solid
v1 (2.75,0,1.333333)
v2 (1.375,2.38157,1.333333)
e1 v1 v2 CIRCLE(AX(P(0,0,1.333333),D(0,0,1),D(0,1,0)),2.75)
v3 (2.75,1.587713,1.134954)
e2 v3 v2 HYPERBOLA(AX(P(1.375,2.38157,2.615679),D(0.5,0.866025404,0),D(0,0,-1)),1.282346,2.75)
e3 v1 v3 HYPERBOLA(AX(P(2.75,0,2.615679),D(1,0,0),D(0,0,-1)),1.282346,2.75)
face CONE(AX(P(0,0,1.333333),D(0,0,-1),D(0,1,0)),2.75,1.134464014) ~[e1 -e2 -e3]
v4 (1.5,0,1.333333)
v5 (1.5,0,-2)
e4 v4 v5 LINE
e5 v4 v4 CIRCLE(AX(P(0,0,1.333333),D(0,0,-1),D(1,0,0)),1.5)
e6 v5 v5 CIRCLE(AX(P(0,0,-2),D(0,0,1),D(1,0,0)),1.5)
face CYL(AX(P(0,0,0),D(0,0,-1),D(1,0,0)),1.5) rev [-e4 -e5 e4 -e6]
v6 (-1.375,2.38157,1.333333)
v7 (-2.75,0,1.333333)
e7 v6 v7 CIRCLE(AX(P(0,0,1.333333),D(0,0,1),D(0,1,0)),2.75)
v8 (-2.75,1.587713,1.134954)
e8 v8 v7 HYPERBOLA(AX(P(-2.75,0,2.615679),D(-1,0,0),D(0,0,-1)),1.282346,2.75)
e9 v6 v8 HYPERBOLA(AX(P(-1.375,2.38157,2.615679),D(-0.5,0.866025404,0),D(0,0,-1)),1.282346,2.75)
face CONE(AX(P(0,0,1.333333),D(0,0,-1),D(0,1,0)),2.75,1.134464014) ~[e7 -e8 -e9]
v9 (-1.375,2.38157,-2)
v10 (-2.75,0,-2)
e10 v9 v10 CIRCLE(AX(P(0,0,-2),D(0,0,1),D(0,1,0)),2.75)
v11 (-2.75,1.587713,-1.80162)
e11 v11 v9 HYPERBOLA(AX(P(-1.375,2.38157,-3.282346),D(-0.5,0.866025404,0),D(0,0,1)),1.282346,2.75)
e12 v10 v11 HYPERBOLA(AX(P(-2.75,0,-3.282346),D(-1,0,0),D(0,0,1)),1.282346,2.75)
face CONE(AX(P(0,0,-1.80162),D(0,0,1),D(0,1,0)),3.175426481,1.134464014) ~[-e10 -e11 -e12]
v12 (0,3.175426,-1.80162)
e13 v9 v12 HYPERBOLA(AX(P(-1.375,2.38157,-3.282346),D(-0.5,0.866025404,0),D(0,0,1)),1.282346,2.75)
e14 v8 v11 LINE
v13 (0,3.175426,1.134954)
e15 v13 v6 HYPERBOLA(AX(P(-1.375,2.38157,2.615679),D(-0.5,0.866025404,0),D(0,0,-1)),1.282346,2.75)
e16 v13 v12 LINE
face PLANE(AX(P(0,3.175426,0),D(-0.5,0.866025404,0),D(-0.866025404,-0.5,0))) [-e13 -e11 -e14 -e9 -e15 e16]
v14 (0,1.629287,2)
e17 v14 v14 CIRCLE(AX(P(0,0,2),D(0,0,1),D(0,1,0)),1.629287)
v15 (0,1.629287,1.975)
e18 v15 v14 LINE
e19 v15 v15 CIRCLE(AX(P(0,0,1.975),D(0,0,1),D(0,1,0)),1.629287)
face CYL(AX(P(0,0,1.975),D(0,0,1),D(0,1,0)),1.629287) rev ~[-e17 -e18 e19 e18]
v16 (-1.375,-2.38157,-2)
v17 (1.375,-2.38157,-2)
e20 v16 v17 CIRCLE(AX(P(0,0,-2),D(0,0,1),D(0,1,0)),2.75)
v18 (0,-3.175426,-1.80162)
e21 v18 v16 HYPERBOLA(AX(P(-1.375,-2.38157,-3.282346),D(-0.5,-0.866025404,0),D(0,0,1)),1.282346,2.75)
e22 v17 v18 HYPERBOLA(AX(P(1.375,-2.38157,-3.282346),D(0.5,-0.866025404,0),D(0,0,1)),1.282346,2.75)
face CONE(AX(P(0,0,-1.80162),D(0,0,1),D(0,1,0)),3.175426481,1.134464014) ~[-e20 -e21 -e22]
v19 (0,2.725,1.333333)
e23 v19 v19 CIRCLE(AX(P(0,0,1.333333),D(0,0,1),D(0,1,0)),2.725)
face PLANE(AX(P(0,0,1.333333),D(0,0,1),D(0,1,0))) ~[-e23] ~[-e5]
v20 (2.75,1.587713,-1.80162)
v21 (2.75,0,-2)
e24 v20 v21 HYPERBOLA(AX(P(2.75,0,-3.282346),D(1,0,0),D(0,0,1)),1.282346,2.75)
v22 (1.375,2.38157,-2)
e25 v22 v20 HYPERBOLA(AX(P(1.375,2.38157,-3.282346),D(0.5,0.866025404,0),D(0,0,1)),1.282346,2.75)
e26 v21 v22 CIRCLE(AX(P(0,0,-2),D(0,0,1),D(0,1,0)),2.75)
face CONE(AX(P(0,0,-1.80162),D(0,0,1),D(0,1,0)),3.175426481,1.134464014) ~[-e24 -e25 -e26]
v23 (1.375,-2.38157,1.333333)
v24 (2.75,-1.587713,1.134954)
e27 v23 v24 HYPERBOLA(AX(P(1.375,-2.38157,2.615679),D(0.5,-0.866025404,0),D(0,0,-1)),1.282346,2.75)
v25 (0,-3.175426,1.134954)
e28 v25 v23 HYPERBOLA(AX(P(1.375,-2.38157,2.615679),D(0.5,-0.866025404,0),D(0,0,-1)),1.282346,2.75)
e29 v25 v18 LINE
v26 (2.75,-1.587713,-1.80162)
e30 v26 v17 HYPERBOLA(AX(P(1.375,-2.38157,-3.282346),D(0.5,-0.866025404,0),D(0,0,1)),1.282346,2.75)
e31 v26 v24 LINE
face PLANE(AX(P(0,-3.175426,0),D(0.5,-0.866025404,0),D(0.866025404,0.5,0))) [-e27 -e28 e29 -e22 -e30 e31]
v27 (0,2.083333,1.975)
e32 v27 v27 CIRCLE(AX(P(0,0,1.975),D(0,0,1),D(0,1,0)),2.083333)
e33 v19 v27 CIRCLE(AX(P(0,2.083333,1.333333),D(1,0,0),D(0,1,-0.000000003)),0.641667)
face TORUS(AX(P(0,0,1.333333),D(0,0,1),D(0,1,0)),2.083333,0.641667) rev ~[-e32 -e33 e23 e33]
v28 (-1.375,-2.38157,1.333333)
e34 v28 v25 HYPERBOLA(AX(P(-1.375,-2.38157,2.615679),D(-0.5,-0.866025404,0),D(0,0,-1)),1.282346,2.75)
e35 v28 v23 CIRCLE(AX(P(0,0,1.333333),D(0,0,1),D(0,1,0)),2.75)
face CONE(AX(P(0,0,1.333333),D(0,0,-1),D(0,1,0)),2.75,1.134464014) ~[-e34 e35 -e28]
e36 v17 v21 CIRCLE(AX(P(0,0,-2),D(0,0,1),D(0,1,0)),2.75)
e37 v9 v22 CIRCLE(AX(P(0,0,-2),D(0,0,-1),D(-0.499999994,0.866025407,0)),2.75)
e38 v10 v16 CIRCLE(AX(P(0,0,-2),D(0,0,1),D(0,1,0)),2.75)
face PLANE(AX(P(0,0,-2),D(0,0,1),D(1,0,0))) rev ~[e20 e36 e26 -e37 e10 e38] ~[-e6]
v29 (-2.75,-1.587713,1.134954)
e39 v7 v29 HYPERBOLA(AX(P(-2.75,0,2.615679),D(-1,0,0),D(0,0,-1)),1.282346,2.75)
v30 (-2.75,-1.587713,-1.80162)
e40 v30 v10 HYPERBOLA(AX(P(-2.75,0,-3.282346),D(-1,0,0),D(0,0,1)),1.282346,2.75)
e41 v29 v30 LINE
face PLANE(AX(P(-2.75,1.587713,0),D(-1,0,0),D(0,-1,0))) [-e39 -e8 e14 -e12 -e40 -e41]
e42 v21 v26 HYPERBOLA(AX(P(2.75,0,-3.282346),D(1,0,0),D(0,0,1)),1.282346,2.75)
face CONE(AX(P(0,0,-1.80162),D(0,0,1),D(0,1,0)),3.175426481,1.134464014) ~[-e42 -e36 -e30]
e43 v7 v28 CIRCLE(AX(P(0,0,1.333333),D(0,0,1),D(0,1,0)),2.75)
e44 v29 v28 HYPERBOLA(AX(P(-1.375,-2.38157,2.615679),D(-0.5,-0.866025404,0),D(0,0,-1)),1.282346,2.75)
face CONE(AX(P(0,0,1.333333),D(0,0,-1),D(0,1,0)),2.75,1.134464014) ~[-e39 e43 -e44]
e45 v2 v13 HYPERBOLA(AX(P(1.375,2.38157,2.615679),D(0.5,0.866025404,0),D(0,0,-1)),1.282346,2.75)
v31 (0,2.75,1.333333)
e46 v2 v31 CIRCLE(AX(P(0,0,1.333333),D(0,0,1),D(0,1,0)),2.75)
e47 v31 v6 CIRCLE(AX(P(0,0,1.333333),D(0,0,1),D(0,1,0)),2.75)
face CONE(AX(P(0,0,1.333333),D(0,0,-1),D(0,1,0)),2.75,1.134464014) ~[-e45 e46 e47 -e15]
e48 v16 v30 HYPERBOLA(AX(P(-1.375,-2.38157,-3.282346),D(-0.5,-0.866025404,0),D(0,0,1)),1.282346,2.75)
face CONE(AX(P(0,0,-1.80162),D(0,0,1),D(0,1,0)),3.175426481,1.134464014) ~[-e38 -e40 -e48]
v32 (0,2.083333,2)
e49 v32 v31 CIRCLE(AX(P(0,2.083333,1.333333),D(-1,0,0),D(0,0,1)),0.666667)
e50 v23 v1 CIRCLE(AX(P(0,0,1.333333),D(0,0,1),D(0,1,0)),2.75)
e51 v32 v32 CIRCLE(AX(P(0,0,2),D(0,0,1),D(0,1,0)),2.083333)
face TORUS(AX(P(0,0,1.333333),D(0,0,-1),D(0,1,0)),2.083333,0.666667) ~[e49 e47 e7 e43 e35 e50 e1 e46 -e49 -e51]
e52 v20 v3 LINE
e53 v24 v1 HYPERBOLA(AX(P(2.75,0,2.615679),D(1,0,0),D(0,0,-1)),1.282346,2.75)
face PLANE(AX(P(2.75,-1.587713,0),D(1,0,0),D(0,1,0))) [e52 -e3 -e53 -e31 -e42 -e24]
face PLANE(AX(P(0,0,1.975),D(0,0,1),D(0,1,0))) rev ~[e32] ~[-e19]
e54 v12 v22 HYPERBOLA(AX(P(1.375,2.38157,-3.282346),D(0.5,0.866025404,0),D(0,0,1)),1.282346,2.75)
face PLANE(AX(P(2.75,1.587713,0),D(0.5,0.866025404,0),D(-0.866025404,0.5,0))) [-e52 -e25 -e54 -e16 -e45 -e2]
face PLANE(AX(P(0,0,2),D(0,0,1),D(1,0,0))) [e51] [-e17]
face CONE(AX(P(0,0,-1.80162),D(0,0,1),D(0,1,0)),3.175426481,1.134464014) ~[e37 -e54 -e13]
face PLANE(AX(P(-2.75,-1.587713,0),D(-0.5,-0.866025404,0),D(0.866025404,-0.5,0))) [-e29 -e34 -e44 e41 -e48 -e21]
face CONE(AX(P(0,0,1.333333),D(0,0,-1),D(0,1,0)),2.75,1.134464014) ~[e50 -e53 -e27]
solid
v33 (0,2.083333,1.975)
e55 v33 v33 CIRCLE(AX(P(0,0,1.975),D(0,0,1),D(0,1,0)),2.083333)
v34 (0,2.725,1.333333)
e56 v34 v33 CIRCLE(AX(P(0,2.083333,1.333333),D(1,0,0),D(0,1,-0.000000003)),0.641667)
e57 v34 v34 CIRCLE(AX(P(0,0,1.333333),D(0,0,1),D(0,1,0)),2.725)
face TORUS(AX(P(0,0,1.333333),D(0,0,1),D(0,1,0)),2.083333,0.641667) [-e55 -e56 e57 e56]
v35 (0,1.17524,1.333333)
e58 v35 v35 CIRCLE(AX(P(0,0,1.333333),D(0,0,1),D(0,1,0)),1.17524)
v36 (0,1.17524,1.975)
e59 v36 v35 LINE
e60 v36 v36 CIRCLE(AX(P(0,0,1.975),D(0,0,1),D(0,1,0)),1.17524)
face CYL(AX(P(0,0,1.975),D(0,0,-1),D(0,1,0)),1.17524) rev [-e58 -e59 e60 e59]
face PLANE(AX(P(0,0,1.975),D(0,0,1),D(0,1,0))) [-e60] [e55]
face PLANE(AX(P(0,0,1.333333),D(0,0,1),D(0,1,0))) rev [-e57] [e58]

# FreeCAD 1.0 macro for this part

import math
import FreeCAD as App
import Part
import Sketcher

V = App.Vector
Q = App.Units.Quantity


def add_polygon(sketch, points):
    """Adds a closed chain of lines whose ends are joined by coincident constraints."""
    first, n = sketch.GeometryCount, len(points)
    for a, b in zip(points, points[1:] + points[:1]):
        sketch.addGeometry(Part.LineSegment(App.Vector(*a, 0), App.Vector(*b, 0)), False)
    for i in range(n):
        sketch.addConstraint(Sketcher.Constraint("Coincident", first + i, 2, first + (i + 1) % n, 1))

doc = App.newDocument("Part")
body = doc.addObject("PartDesign::Body", "Body")

# Sketch on XY plane
sketch1 = body.newObject("Sketcher::SketchObject", "Sketch")
sketch1.AttachmentSupport = (doc.getObject("XY_Plane"), [""])
sketch1.MapMode = "FlatFace"
add_polygon(sketch1, [(0, -3.175426), (2.75, -1.587713), (2.75, 1.587713), (0, 3.175426), (-2.75, 1.587713), (-2.75, -1.587713)])  # lines 0-5
sketch1.addGeometry(Part.Circle(V(0, 0, 0), V(0, 0, 1), 1.5), False)  # 6
sketch1.addConstraint(Sketcher.Constraint("Vertical", 1))
sketch1.addConstraint(Sketcher.Constraint("Vertical", 4))
sketch1.addConstraint(Sketcher.Constraint("Coincident", 6, 3, -1, 1))
sketch1.addConstraint(Sketcher.Constraint("Symmetric", 0, 2, 3, 2, -1, 1))
sketch1.addConstraint(Sketcher.Constraint("Symmetric", 2, 2, 5, 2, -1, 1))
sketch1.addConstraint(Sketcher.Constraint("PointOnObject", 2, 2, -2))
sketch1.addConstraint(Sketcher.Constraint("Parallel", 2, 5))
sketch1.addConstraint(Sketcher.Constraint("Horizontal", 1, 2, 3, 2))
sketch1.addConstraint(Sketcher.Constraint("Diameter", 6, Q("3 mm")))
sketch1.addConstraint(Sketcher.Constraint("Angle", 0, Q("30 deg")))
sketch1.addConstraint(Sketcher.Constraint("DistanceX", 3, 2, 1, 2, Q("5.5 mm")))
sketch1.addConstraint(Sketcher.Constraint("DistanceY", 1, 1, 1, 2, Q("3.175426 mm")))
pad1 = body.newObject("PartDesign::Pad", "Pad")
pad1.Profile = sketch1
pad1.Length = 4
pad1.Midplane = True

# Sketch on YZ plane
sketch2 = body.newObject("Sketcher::SketchObject", "Sketch001")
sketch2.AttachmentSupport = (doc.getObject("YZ_Plane"), [""])
sketch2.MapMode = "FlatFace"
sketch2.addGeometry(Part.LineSegment(V(4.445426, -3.27, 0), V(4.445426, 3.27, 0)), False)
sketch2.addGeometry(Part.LineSegment(V(4.445426, 3.27, 0), V(2.083333, 3.27, 0)), False)
sketch2.addGeometry(Part.LineSegment(V(2.083333, 3.27, 0), V(2.083333, 2, 0)), False)
sketch2.addGeometry(Part.ArcOfCircle(Part.Circle(V(2.083333, 1.333333, 0), V(0, 0, 1), 0.666667), math.radians(0), math.radians(90)), False)
sketch2.addGeometry(Part.LineSegment(V(2.75, 1.333333, 0), V(3.175426, 1.134954, 0)), False)
sketch2.addGeometry(Part.LineSegment(V(3.175426, 1.134954, 0), V(3.175426, -1.80162, 0)), False)
sketch2.addGeometry(Part.LineSegment(V(3.175426, -1.80162, 0), V(2.75, -2, 0)), False)
sketch2.addGeometry(Part.LineSegment(V(2.75, -2, 0), V(0, -2, 0)), False)
sketch2.addGeometry(Part.LineSegment(V(0, -2, 0), V(0, -3.27, 0)), False)
sketch2.addGeometry(Part.LineSegment(V(0, -3.27, 0), V(4.445426, -3.27, 0)), False)
sketch2.addGeometry(Part.LineSegment(V(1.629287, 3.27, 0), V(0, 3.27, 0)), False)
sketch2.addGeometry(Part.LineSegment(V(0, 3.27, 0), V(0, 1.333333, 0)), False)
sketch2.addGeometry(Part.LineSegment(V(0, 1.333333, 0), V(2.725, 1.333333, 0)), False)
sketch2.addGeometry(Part.ArcOfCircle(Part.Circle(V(2.083333, 1.333333, 0), V(0, 0, 1), 0.641667), math.radians(0), math.radians(90)), False)
sketch2.addGeometry(Part.LineSegment(V(2.083333, 1.975, 0), V(1.629287, 1.975, 0)), False)
sketch2.addGeometry(Part.LineSegment(V(1.629287, 1.975, 0), V(1.629287, 3.27, 0)), False)
sketch2.addConstraint(Sketcher.Constraint("Coincident", 0, 2, 1, 1))
sketch2.addConstraint(Sketcher.Constraint("Coincident", 1, 2, 2, 1))
sketch2.addConstraint(Sketcher.Constraint("Coincident", 2, 2, 3, 2))
sketch2.addConstraint(Sketcher.Constraint("Coincident", 3, 1, 4, 1))
sketch2.addConstraint(Sketcher.Constraint("Coincident", 4, 2, 5, 1))
sketch2.addConstraint(Sketcher.Constraint("Coincident", 5, 2, 6, 1))
sketch2.addConstraint(Sketcher.Constraint("Coincident", 6, 2, 7, 1))
sketch2.addConstraint(Sketcher.Constraint("Coincident", 7, 2, 8, 1))
sketch2.addConstraint(Sketcher.Constraint("Coincident", 8, 2, 9, 1))
sketch2.addConstraint(Sketcher.Constraint("Coincident", 9, 2, 0, 1))
sketch2.addConstraint(Sketcher.Constraint("Coincident", 10, 2, 11, 1))
sketch2.addConstraint(Sketcher.Constraint("Coincident", 11, 2, 12, 1))
sketch2.addConstraint(Sketcher.Constraint("Coincident", 12, 2, 13, 1))
sketch2.addConstraint(Sketcher.Constraint("Tangent", 13, 2, 14, 1))
sketch2.addConstraint(Sketcher.Constraint("Coincident", 14, 2, 15, 1))
sketch2.addConstraint(Sketcher.Constraint("Coincident", 15, 2, 10, 1))
sketch2.addConstraint(Sketcher.Constraint("Vertical", 0))
sketch2.addConstraint(Sketcher.Constraint("Horizontal", 1))
sketch2.addConstraint(Sketcher.Constraint("Vertical", 2))
sketch2.addConstraint(Sketcher.Constraint("Vertical", 5))
sketch2.addConstraint(Sketcher.Constraint("Horizontal", 7))
sketch2.addConstraint(Sketcher.Constraint("Vertical", 8))
sketch2.addConstraint(Sketcher.Constraint("Horizontal", 9))
sketch2.addConstraint(Sketcher.Constraint("Horizontal", 10))
sketch2.addConstraint(Sketcher.Constraint("Vertical", 11))
sketch2.addConstraint(Sketcher.Constraint("Horizontal", 12))
sketch2.addConstraint(Sketcher.Constraint("Horizontal", 14))
sketch2.addConstraint(Sketcher.Constraint("Vertical", 15))
sketch2.addConstraint(Sketcher.Constraint("Coincident", 13, 3, 3, 3))
sketch2.addConstraint(Sketcher.Constraint("Symmetric", 8, 2, 10, 2, -1, 1))
sketch2.addConstraint(Sketcher.Constraint("PointOnObject", 7, 2, -2))
sketch2.addConstraint(Sketcher.Constraint("Horizontal", 13, 3, 3, 1))
sketch2.addConstraint(Sketcher.Constraint("Horizontal", 1, 2, 10, 2))
sketch2.addConstraint(Sketcher.Constraint("Horizontal", 3, 1, 11, 2))
sketch2.addConstraint(Sketcher.Constraint("Vertical", 13, 3, 1, 2))
sketch2.addConstraint(Sketcher.Constraint("Vertical", 3, 1, 6, 2))
sketch2.addConstraint(Sketcher.Constraint("Equal", 2, 8))
sketch2.addConstraint(Sketcher.Constraint("Equal", 4, 6))
sketch2.addConstraint(Sketcher.Constraint("Angle", 4, Q("-25 deg")))
sketch2.addConstraint(Sketcher.Constraint("DistanceY", -1, 1, 2, 2, Q("2 mm")))
sketch2.addConstraint(Sketcher.Constraint("DistanceX", 7, 2, 7, 1, Q("2.75 mm")))
sketch2.addConstraint(Sketcher.Constraint("DistanceY", 0, 1, 0, 2, Q("6.54 mm")))
sketch2.addConstraint(Sketcher.Constraint("DistanceX", 12, 1, 12, 2, Q("2.725 mm")))
sketch2.addConstraint(Sketcher.Constraint("DistanceX", 5, 2, 9, 2, Q("1.27 mm")))
sketch2.addConstraint(Sketcher.Constraint("Radius", 3, Q("0.666667 mm")))
sketch2.addConstraint(Sketcher.Constraint("DistanceX", 1, 2, 1, 1, Q("2.362093 mm")))
sketch2.addConstraint(Sketcher.Constraint("DistanceX", 10, 2, 10, 1, Q("1.629287 mm")))
groove = body.newObject("PartDesign::Groove", "Groove")
groove.Profile = sketch2
groove.ReferenceAxis = (sketch2, ["V_Axis"])
groove.Angle = 360
body2 = doc.addObject("PartDesign::Body", "Body001")

# Sketch on YZ plane
sketch3 = body2.newObject("Sketcher::SketchObject", "Sketch002")
sketch3.AttachmentSupport = (doc.getObject("YZ_Plane001"), [""])
sketch3.MapMode = "FlatFace"
sketch3.addGeometry(Part.LineSegment(V(2.083333, 1.975, 0), V(1.17524, 1.975, 0)), False)
sketch3.addGeometry(Part.LineSegment(V(1.17524, 1.975, 0), V(1.17524, 1.333333, 0)), False)
sketch3.addGeometry(Part.LineSegment(V(1.17524, 1.333333, 0), V(2.725, 1.333333, 0)), False)
sketch3.addGeometry(Part.ArcOfCircle(Part.Circle(V(2.083333, 1.333333, 0), V(0, 0, 1), 0.641667), math.radians(0), math.radians(90)), False)
sketch3.addConstraint(Sketcher.Constraint("Coincident", 0, 2, 1, 1))
sketch3.addConstraint(Sketcher.Constraint("Coincident", 1, 2, 2, 1))
sketch3.addConstraint(Sketcher.Constraint("Coincident", 2, 2, 3, 1))
sketch3.addConstraint(Sketcher.Constraint("Tangent", 3, 2, 0, 1))
sketch3.addConstraint(Sketcher.Constraint("Horizontal", 0))
sketch3.addConstraint(Sketcher.Constraint("Vertical", 1))
sketch3.addConstraint(Sketcher.Constraint("Horizontal", 2))
sketch3.addConstraint(Sketcher.Constraint("Horizontal", 3, 3, 1, 2))
sketch3.addConstraint(Sketcher.Constraint("DistanceY", -1, 1, 0, 2, Q("1.975 mm")))
sketch3.addConstraint(Sketcher.Constraint("DistanceX", -1, 1, 2, 2, Q("2.725 mm")))
sketch3.addConstraint(Sketcher.Constraint("Radius", 3, Q("0.641667 mm")))
sketch3.addConstraint(Sketcher.Constraint("DistanceX", 2, 1, 2, 2, Q("1.54976 mm")))
revolution = body2.newObject("PartDesign::Revolution", "Revolution")
revolution.Profile = sketch3
revolution.ReferenceAxis = (sketch3, ["V_Axis"])
revolution.Angle = 360

doc.recompute()
